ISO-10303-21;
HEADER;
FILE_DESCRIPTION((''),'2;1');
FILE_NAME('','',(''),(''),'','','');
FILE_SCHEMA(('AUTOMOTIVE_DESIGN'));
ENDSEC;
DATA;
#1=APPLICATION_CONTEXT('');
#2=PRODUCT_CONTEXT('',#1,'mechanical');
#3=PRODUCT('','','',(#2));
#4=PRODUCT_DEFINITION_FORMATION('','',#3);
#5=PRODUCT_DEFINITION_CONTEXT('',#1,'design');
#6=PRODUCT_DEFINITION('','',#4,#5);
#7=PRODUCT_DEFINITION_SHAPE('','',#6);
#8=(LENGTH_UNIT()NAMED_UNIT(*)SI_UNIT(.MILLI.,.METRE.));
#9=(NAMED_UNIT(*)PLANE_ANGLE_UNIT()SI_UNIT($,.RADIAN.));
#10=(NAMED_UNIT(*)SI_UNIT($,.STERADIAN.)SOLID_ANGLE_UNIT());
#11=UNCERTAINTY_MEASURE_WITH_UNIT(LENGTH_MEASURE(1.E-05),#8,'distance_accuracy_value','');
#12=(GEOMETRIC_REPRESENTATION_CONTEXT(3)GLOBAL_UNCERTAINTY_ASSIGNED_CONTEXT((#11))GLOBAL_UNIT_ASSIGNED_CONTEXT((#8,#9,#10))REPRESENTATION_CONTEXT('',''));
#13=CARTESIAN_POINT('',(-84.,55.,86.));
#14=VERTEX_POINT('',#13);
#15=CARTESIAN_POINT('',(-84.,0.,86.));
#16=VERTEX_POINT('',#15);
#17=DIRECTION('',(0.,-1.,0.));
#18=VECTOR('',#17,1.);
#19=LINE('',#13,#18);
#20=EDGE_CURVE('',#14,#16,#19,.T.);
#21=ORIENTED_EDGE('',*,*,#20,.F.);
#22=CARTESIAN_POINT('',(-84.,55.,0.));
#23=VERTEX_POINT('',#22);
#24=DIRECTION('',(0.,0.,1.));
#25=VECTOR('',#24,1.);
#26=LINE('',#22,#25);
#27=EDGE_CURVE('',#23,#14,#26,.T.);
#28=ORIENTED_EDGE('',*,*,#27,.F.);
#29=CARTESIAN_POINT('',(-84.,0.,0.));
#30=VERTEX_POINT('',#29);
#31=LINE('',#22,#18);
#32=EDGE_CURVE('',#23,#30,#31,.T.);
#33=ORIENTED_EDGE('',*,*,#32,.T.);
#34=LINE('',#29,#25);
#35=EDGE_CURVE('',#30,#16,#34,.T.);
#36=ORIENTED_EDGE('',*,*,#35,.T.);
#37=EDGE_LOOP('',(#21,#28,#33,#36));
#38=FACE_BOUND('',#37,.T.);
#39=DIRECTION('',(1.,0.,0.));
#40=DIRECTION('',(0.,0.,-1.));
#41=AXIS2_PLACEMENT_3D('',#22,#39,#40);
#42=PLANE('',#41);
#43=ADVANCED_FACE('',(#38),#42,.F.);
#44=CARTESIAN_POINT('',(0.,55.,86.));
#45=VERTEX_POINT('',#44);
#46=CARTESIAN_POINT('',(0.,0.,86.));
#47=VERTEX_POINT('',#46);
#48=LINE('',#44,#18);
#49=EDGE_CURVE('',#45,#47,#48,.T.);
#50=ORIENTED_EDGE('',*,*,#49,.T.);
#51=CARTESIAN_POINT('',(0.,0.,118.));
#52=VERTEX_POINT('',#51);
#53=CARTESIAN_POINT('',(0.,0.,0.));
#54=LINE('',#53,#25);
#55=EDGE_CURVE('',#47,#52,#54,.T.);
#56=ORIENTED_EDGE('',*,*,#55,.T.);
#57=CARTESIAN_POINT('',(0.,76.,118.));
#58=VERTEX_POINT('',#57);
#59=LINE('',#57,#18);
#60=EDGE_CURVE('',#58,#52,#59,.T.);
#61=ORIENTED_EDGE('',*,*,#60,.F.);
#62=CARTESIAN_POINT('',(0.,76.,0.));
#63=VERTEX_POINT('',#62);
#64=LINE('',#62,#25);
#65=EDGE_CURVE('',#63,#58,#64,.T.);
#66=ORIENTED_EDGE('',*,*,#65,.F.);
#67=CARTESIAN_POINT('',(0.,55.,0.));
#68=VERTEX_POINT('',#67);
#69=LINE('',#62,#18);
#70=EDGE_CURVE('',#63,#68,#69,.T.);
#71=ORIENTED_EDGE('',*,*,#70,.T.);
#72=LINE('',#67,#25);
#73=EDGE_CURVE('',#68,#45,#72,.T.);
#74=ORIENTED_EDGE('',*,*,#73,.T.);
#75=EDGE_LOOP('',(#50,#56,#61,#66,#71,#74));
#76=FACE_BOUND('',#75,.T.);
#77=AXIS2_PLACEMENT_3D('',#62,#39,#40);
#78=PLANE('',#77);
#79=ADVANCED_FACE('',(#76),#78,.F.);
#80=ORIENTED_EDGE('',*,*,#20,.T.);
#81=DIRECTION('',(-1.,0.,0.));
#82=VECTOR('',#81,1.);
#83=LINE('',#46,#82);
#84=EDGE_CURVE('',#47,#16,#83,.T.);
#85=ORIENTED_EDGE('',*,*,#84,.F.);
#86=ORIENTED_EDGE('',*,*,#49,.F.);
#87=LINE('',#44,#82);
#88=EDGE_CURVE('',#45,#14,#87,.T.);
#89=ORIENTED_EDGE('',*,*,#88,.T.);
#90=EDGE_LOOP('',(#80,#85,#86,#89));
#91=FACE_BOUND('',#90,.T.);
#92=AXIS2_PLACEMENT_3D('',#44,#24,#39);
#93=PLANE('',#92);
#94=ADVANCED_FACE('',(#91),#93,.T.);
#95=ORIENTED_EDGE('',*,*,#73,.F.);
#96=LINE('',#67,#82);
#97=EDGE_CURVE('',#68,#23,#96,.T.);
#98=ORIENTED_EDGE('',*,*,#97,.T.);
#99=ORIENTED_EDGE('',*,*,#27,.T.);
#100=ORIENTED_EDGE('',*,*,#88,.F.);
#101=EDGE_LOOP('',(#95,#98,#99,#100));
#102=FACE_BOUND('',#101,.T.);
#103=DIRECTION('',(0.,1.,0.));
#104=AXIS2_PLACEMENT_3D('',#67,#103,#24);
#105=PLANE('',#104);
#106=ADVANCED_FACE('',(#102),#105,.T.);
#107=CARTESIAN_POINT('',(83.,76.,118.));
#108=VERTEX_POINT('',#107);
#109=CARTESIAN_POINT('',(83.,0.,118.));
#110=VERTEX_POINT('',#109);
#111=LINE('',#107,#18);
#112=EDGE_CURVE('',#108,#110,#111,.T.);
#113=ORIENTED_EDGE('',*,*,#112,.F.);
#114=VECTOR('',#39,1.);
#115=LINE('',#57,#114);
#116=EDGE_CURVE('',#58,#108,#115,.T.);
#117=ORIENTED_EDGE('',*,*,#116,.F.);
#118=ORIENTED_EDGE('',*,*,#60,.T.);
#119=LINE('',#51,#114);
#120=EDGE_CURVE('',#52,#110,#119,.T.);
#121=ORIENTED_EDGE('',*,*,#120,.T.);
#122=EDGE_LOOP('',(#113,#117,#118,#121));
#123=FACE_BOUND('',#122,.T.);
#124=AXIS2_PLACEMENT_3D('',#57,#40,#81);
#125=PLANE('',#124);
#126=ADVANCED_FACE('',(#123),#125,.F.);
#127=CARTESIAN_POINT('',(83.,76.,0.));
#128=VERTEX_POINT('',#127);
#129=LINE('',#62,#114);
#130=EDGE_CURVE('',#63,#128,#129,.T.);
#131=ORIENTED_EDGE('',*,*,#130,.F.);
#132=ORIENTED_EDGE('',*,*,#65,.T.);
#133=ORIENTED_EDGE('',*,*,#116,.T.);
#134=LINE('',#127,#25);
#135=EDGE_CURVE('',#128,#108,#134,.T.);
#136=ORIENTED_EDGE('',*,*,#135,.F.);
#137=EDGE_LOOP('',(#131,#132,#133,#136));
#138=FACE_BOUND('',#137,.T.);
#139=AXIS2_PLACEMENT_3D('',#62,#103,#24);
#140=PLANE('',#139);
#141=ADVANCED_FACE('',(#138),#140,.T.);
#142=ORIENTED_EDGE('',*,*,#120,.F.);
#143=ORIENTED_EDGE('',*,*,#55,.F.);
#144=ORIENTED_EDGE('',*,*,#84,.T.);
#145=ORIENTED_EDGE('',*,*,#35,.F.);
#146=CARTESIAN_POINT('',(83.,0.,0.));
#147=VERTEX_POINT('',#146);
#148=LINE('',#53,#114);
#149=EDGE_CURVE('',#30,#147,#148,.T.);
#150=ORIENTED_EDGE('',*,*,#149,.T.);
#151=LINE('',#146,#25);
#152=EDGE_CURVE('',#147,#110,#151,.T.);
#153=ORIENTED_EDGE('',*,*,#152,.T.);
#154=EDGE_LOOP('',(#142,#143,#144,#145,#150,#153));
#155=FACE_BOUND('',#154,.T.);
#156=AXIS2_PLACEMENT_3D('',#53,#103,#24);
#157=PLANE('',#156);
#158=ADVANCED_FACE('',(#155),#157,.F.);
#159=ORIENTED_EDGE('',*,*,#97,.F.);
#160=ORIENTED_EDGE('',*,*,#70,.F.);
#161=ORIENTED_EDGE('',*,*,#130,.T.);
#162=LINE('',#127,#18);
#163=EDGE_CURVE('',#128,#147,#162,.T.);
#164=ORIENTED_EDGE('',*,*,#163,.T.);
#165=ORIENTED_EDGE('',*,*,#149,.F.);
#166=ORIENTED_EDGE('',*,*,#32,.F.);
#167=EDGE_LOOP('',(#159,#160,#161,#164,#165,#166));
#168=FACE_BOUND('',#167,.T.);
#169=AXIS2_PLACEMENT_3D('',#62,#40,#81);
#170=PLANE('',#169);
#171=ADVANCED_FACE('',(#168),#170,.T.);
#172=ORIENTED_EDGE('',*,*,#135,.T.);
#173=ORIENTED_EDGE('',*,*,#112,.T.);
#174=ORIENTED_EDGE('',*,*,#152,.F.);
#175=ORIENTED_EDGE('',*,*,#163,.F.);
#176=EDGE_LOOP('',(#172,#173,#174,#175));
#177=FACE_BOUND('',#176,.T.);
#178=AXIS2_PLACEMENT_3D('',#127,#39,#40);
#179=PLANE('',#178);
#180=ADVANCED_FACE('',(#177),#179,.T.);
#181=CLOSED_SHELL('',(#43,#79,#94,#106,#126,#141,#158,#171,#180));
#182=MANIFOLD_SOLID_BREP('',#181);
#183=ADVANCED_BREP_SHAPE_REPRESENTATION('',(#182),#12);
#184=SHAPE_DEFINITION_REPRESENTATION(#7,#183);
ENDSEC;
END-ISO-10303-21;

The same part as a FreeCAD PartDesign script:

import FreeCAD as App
import Part
import Sketcher
Q = App.Units.Quantity


def add_polygon(sketch, points):
    """Adds a closed chain of lines whose ends are joined by coincident constraints."""
    first, n = sketch.GeometryCount, len(points)
    for a, b in zip(points, points[1:] + points[:1]):
        sketch.addGeometry(Part.LineSegment(App.Vector(*a, 0), App.Vector(*b, 0)), False)
    for i in range(n):
        sketch.addConstraint(Sketcher.Constraint("Coincident", first + i, 2, first + (i + 1) % n, 1))

doc = App.newDocument("Part")
params = doc.addObject("Spreadsheet::Sheet", "Params")
for row, (alias, value) in enumerate([
    ("sketch1_width", "83 mm"),
    ("sketch1_height", "118 mm"),
    ("pad1_length", "76 mm"),
    ("sketch2_width", "84 mm"),
    ("sketch2_height", "86 mm"),
    ("pad2_length", "55 mm"),
], start=1):
    params.set(f"A{row}", alias)
    params.set(f"B{row}", "=" + value)
    params.setAlias(f"B{row}", alias)

body = doc.addObject("PartDesign::Body", "Body")

# Sketch on XZ plane
sketch1 = body.newObject("Sketcher::SketchObject", "Sketch")
sketch1.AttachmentSupport = (doc.getObject("XZ_Plane"), [""])
sketch1.MapMode = "FlatFace"
add_polygon(sketch1, [(0, 0), (0, 118), (83, 118), (83, 0)])  # lines 0-3
sketch1.addConstraint([
    Sketcher.Constraint("Vertical", 0),
    Sketcher.Constraint("Horizontal", 1),
    Sketcher.Constraint("Vertical", 2),
    Sketcher.Constraint("Horizontal", 3),
    Sketcher.Constraint("Coincident", 3, 2, -1, 1),
    Sketcher.Constraint("DistanceX", 1, 1, 1, 2, Q("83 mm")),
    Sketcher.Constraint("DistanceY", 0, 1, 0, 2, Q("118 mm")),
])
sketch1.setExpression("Constraints[9]", "Params.sketch1_width")
sketch1.setExpression("Constraints[10]", "Params.sketch1_height")
pad1 = body.newObject("PartDesign::Pad", "Pad")
pad1.Profile = sketch1
pad1.setExpression("Length", "Params.pad1_length")
pad1.Reversed = True

# Sketch on XZ plane
sketch2 = body.newObject("Sketcher::SketchObject", "Sketch001")
sketch2.AttachmentSupport = (doc.getObject("XZ_Plane"), [""])
sketch2.MapMode = "FlatFace"
add_polygon(sketch2, [(-84, 0), (-84, 86), (0, 86), (0, 0)])  # lines 0-3
sketch2.addConstraint([
    Sketcher.Constraint("Vertical", 0),
    Sketcher.Constraint("Horizontal", 1),
    Sketcher.Constraint("Vertical", 2),
    Sketcher.Constraint("Horizontal", 3),
    Sketcher.Constraint("Coincident", 2, 2, -1, 1),
    Sketcher.Constraint("DistanceX", 1, 1, 1, 2, Q("84 mm")),
    Sketcher.Constraint("DistanceY", 0, 1, 0, 2, Q("86 mm")),
])
sketch2.setExpression("Constraints[9]", "Params.sketch2_width")
sketch2.setExpression("Constraints[10]", "Params.sketch2_height")
pad2 = body.newObject("PartDesign::Pad", "Pad001")
pad2.Profile = sketch2
pad2.setExpression("Length", "Params.pad2_length")
pad2.Reversed = True

doc.recompute()
